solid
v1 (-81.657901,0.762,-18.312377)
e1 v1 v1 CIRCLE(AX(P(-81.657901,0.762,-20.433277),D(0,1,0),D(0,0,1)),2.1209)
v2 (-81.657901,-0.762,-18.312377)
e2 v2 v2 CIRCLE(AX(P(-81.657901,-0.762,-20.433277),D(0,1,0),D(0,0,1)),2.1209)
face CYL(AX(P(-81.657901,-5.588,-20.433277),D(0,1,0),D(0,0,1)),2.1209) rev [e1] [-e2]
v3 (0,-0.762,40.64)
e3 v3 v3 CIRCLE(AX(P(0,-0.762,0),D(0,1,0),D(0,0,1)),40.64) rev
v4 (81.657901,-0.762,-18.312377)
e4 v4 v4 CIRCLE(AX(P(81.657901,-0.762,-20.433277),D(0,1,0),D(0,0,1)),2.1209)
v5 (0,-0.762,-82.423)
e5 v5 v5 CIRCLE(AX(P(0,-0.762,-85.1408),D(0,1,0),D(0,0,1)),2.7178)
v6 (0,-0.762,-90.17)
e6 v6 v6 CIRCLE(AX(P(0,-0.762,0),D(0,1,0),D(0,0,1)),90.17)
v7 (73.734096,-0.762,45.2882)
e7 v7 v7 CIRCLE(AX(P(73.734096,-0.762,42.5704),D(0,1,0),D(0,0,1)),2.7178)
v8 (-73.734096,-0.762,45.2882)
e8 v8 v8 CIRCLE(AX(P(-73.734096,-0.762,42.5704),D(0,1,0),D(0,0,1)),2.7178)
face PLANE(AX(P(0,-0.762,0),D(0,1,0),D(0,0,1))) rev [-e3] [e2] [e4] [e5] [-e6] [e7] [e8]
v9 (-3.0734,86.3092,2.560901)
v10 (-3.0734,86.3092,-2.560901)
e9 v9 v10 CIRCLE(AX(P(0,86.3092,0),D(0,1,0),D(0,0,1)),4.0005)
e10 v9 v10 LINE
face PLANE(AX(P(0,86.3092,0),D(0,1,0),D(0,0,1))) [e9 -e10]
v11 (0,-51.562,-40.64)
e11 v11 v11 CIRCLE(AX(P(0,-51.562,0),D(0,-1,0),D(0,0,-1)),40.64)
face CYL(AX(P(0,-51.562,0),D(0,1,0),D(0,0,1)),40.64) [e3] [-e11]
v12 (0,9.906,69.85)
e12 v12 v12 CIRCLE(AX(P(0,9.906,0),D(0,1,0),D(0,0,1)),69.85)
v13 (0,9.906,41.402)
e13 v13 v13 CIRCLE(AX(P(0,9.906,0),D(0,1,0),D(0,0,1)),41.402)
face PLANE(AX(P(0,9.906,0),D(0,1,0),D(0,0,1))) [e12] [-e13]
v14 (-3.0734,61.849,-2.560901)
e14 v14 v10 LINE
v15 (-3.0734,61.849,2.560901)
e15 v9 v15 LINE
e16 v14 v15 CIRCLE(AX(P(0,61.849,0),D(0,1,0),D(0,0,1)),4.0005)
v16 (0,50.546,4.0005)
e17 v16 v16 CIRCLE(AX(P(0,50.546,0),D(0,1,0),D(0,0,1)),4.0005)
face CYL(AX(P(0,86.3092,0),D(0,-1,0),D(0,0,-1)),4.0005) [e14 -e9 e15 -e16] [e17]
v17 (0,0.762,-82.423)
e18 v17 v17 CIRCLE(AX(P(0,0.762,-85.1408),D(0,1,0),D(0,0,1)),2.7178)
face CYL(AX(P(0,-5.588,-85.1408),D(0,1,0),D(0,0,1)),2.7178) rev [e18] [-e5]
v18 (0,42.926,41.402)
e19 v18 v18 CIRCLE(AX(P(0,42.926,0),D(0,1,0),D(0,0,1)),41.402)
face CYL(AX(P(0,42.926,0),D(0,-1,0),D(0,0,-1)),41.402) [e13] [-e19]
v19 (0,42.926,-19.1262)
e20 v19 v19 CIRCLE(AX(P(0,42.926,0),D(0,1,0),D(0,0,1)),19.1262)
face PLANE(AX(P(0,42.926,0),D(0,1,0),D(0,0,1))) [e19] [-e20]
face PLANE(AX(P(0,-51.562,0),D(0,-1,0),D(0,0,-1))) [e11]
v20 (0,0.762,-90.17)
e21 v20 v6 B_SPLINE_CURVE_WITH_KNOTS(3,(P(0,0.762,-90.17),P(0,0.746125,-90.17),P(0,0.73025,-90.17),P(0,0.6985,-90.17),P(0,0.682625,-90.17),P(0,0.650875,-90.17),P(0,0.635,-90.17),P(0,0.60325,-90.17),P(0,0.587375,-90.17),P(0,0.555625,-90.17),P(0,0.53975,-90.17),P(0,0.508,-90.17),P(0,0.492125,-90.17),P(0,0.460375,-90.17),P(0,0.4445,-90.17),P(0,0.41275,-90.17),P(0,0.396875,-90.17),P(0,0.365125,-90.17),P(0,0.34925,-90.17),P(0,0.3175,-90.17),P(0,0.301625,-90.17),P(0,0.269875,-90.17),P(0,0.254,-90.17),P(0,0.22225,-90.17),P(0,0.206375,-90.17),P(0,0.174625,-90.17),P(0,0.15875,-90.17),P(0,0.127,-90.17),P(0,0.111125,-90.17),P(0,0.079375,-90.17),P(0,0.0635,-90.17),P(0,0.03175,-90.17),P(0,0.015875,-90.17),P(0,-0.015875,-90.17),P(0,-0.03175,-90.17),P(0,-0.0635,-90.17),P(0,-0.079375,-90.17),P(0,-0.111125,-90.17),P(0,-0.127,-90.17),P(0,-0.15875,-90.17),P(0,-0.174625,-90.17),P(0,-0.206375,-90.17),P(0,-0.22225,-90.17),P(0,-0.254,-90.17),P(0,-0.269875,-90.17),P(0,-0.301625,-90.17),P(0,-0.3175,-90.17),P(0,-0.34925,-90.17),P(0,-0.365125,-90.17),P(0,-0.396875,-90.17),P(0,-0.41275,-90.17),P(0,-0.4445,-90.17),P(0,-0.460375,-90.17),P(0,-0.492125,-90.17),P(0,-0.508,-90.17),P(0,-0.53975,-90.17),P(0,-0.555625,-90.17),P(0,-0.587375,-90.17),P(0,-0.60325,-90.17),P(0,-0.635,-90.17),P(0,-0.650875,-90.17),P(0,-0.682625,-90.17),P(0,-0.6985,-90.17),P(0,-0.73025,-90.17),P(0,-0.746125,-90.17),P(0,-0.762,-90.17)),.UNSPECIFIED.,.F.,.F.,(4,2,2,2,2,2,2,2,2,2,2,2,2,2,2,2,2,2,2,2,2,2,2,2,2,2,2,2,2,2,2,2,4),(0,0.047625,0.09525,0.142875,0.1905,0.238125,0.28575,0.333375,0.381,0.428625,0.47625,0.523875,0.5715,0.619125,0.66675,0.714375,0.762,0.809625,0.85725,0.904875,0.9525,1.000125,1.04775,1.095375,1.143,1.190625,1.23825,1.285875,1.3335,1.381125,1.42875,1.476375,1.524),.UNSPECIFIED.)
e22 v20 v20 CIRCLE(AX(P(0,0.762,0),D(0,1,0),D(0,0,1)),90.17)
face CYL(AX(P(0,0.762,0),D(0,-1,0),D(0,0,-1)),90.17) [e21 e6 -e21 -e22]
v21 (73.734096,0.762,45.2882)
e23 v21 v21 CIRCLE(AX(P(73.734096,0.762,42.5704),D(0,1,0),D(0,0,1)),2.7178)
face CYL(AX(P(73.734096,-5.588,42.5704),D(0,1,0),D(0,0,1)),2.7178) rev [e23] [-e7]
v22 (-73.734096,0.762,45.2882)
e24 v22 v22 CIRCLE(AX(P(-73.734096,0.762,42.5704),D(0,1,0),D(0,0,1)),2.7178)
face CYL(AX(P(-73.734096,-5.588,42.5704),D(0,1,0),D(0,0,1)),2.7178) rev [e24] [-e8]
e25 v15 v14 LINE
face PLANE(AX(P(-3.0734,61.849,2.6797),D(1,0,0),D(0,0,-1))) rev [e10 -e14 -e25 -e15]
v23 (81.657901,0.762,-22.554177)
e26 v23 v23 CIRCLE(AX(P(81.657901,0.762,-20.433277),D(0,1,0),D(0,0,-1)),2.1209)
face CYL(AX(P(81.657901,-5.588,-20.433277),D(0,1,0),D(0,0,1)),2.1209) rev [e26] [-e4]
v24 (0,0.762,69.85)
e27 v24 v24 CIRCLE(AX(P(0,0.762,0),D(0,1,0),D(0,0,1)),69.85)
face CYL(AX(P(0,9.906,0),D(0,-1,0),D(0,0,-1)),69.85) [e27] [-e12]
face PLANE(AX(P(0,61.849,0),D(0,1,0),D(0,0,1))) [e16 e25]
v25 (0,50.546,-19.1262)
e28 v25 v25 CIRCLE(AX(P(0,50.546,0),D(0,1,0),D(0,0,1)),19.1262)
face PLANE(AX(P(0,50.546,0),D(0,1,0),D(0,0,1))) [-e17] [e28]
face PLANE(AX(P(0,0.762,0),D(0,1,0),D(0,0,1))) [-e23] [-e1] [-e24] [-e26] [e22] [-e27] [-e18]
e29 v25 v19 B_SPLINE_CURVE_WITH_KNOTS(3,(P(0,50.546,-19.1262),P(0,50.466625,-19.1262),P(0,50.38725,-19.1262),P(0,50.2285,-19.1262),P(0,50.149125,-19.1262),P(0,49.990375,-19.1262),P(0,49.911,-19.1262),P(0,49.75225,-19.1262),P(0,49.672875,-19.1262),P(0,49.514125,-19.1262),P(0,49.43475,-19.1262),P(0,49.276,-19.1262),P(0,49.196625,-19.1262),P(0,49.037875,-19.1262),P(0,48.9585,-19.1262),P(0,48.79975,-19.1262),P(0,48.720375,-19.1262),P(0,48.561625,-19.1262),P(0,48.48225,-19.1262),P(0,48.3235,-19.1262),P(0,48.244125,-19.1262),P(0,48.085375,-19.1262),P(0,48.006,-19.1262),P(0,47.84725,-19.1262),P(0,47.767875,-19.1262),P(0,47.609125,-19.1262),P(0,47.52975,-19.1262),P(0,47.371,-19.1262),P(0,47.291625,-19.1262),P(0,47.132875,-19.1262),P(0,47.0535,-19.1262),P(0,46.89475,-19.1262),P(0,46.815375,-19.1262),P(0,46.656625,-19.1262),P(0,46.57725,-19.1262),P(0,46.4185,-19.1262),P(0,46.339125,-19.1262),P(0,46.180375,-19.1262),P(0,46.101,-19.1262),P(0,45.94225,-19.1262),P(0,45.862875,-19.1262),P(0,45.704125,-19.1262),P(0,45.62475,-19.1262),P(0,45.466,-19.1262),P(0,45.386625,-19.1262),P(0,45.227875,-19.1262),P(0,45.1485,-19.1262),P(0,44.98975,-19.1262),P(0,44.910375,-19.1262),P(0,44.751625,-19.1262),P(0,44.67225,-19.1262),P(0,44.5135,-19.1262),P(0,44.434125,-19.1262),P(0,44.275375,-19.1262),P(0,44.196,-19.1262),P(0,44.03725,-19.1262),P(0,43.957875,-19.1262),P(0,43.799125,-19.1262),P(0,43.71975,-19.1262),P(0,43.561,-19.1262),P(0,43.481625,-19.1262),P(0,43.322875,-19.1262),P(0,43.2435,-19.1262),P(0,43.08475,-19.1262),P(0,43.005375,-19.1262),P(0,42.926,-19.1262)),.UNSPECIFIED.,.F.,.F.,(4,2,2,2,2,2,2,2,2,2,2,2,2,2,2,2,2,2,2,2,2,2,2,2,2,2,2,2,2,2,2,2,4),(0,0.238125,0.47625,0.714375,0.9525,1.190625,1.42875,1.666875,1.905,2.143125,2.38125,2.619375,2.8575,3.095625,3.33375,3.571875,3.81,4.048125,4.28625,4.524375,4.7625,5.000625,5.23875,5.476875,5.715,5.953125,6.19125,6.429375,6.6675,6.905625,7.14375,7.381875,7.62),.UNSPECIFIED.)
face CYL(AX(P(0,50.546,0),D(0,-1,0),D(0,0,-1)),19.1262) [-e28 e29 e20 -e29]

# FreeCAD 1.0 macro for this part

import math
import FreeCAD as App
import Part
import Sketcher
Q = App.Units.Quantity

doc = App.newDocument("Part")
body = doc.addObject("PartDesign::Body", "Body")

sketch1 = doc.addObject("Sketcher::SketchObject", "Sketch")
body.addObject(sketch1)
sketch1.AttachmentSupport = (doc.XZ_Plane, [""])
sketch1.MapMode = "FlatFace"
sketch1.addGeometry(Part.Circle(App.Vector(0, 0, 0), App.Vector(0, 0, 1), 90), False)
sketch1.addConstraint([
    Sketcher.Constraint("Coincident", 0, 3, -1, 1),
    Sketcher.Constraint("Diameter", 0, Q("7.1 in")),
])
pad1 = doc.addObject("PartDesign::Pad", "Pad")
body.addObject(pad1)
pad1.Profile = sketch1
pad1.Length = Q("0.06 in")
pad1.Midplane = True

sketch2 = doc.addObject("Sketcher::SketchObject", "Sketch001")
body.addObject(sketch2)
sketch2.AttachmentSupport = (doc.XZ_Plane, [""])
sketch2.MapMode = "FlatFace"
sketch2.AttachmentOffset = App.Placement(App.Vector(0, 0, -0.03 * 25.4), App.Rotation())
sketch2.addGeometry(Part.Circle(App.Vector(0, 0, 0), App.Vector(0, 0, 1), 70), False)
sketch2.addConstraint([
    Sketcher.Constraint("Coincident", 0, 3, -1, 1),
    Sketcher.Constraint("Diameter", 0, Q("5.5 in")),
])
pad2 = doc.addObject("PartDesign::Pad", "Pad001")
body.addObject(pad2)
pad2.Profile = sketch2
pad2.Length = Q("0.36 in")
pad2.Reversed = True

sketch3 = doc.addObject("Sketcher::SketchObject", "Sketch002")
body.addObject(sketch3)
sketch3.AttachmentSupport = (doc.XZ_Plane, [""])
sketch3.MapMode = "FlatFace"
sketch3.AttachmentOffset = App.Placement(App.Vector(0, 0, -0.39 * 25.4), App.Rotation())
sketch3.addGeometry(Part.Circle(App.Vector(0, 0, 0), App.Vector(0, 0, 1), 41), False)
sketch3.addConstraint([
    Sketcher.Constraint("Coincident", 0, 3, -1, 1),
    Sketcher.Constraint("Diameter", 0, Q("3.26 in")),
])
pad3 = doc.addObject("PartDesign::Pad", "Pad002")
body.addObject(pad3)
pad3.Profile = sketch3
pad3.Length = Q("1.3 in")
pad3.Reversed = True

sketch4 = doc.addObject("Sketcher::SketchObject", "Sketch003")
body.addObject(sketch4)
sketch4.AttachmentSupport = (doc.XZ_Plane, [""])
sketch4.MapMode = "FlatFace"
sketch4.AttachmentOffset = App.Placement(App.Vector(0, 0, -1.69 * 25.4), App.Rotation())
sketch4.addGeometry(Part.Circle(App.Vector(0, 0, 0), App.Vector(0, 0, 1), 19), False)
sketch4.addConstraint([
    Sketcher.Constraint("Coincident", 0, 3, -1, 1),
    Sketcher.Constraint("Diameter", 0, Q("1.506 in")),
])
pad4 = doc.addObject("PartDesign::Pad", "Pad003")
body.addObject(pad4)
pad4.Profile = sketch4
pad4.Length = Q("0.3 in")
pad4.Reversed = True

sketch5 = doc.addObject("Sketcher::SketchObject", "Sketch004")
body.addObject(sketch5)
sketch5.AttachmentSupport = (doc.XZ_Plane, [""])
sketch5.MapMode = "FlatFace"
sketch5.AttachmentOffset = App.Placement(App.Vector(0, 0, -1.99 * 25.4), App.Rotation())
sketch5.addGeometry(Part.Circle(App.Vector(0, 0, 0), App.Vector(0, 0, 1), 4), False)
sketch5.addConstraint([
    Sketcher.Constraint("Coincident", 0, 3, -1, 1),
    Sketcher.Constraint("Diameter", 0, Q("0.315 in")),
])
pad5 = doc.addObject("PartDesign::Pad", "Pad004")
body.addObject(pad5)
pad5.Profile = sketch5
pad5.Length = Q("1.408 in")
pad5.Reversed = True

sketch6 = doc.addObject("Sketcher::SketchObject", "Sketch005")
body.addObject(sketch6)
sketch6.AttachmentSupport = (doc.XZ_Plane, [""])
sketch6.MapMode = "FlatFace"
sketch6.AttachmentOffset = App.Placement(App.Vector(0, 0, -3.398 * 25.4), App.Rotation())
sketch6.addGeometry([
    Part.LineSegment(App.Vector(-3.1, 2.7, 0), App.Vector(-3.1, -2.7, 0)),
    Part.ArcOfCircle(Part.Circle(App.Vector(0, 0, 0), App.Vector(0, 0, 1), 4.1), math.radians(139), math.radians(221)),
], False)
sketch6.addConstraint([
    Sketcher.Constraint("Coincident", 0, 1, 1, 1),
    Sketcher.Constraint("Coincident", 1, 2, 0, 2),
    Sketcher.Constraint("Vertical", 0),
    Sketcher.Constraint("Coincident", 1, 3, -1, 1),
    Sketcher.Constraint("DistanceY", 0, 2, 0, 1, Q("0.211 in")),
    Sketcher.Constraint("DistanceX", 0, 1, -1, 1, Q("0.121 in")),
])
pocket1 = doc.addObject("PartDesign::Pocket", "Pocket")
body.addObject(pocket1)
pocket1.Profile = sketch6
pocket1.Length = Q("0.963 in")
pocket1.Reversed = True

sketch7 = doc.addObject("Sketcher::SketchObject", "Sketch006")
body.addObject(sketch7)
sketch7.AttachmentSupport = (doc.XZ_Plane, [""])
sketch7.MapMode = "FlatFace"
sketch7.AttachmentOffset = App.Placement(App.Vector(0, 0, -0.03 * 25.4), App.Rotation())
sketch7.addGeometry([
    Part.Circle(App.Vector(0, -85.1, 0), App.Vector(0, 0, 1), 2.7),
    Part.Circle(App.Vector(73.7, 42.6, 0), App.Vector(0, 0, 1), 2.7),
    Part.Circle(App.Vector(-73.7, 42.6, 0), App.Vector(0, 0, 1), 2.7),
], False)
sketch7.addConstraint([
    Sketcher.Constraint("Equal", 0, 1),
    Sketcher.Constraint("Equal", 1, 2),
    Sketcher.Constraint("Symmetric", 1, 3, 2, 3, -2),
    Sketcher.Constraint("PointOnObject", 0, 3, -2),
    Sketcher.Constraint("Diameter", 0, Q("0.214 in")),
    Sketcher.Constraint("DistanceY", 0, 3, -1, 1, Q("3.352 in")),
    Sketcher.Constraint("DistanceY", -1, 1, 1, 3, Q("1.676 in")),
    Sketcher.Constraint("DistanceX", 2, 3, 1, 3, Q("147.468191 mm")),
])
pocket2 = doc.addObject("PartDesign::Pocket", "Pocket001")
body.addObject(pocket2)
pocket2.Profile = sketch7
pocket2.Length = Q("0.25 in")
pocket2.Reversed = True

sketch8 = doc.addObject("Sketcher::SketchObject", "Sketch007")
body.addObject(sketch8)
sketch8.AttachmentSupport = (doc.XZ_Plane, [""])
sketch8.MapMode = "FlatFace"
sketch8.AttachmentOffset = App.Placement(App.Vector(0, 0, -0.03 * 25.4), App.Rotation())
sketch8.addGeometry([
    Part.Circle(App.Vector(-81.7, -20.4, 0), App.Vector(0, 0, 1), 2.1),
    Part.Circle(App.Vector(81.7, -20.4, 0), App.Vector(0, 0, 1), 2.1),
], False)
sketch8.addConstraint([
    Sketcher.Constraint("Equal", 0, 1),
    Sketcher.Constraint("Symmetric", 0, 3, 1, 3, -2),
    Sketcher.Constraint("Diameter", 0, Q("0.167 in")),
    Sketcher.Constraint("DistanceX", 0, 3, -1, 1, Q("81.657901 mm")),
    Sketcher.Constraint("DistanceY", 0, 3, -1, 1, Q("20.433277 mm")),
])
pocket3 = doc.addObject("PartDesign::Pocket", "Pocket002")
body.addObject(pocket3)
pocket3.Profile = sketch8
pocket3.Length = Q("0.25 in")
pocket3.Reversed = True

sketch9 = doc.addObject("Sketcher::SketchObject", "Sketch008")
body.addObject(sketch9)
sketch9.AttachmentSupport = (doc.XZ_Plane, [""])
sketch9.MapMode = "FlatFace"
sketch9.AttachmentOffset = App.Placement(App.Vector(0, 0, 0.03 * 25.4), App.Rotation())
sketch9.addGeometry(Part.Circle(App.Vector(0, 0, 0), App.Vector(0, 0, 1), 41), False)
sketch9.addConstraint([
    Sketcher.Constraint("Coincident", 0, 3, -1, 1),
    Sketcher.Constraint("Diameter", 0, Q("3.2 in")),
])
pad6 = doc.addObject("PartDesign::Pad", "Pad005")
body.addObject(pad6)
pad6.Profile = sketch9
pad6.Length = Q("2 in")

doc.recompute()
